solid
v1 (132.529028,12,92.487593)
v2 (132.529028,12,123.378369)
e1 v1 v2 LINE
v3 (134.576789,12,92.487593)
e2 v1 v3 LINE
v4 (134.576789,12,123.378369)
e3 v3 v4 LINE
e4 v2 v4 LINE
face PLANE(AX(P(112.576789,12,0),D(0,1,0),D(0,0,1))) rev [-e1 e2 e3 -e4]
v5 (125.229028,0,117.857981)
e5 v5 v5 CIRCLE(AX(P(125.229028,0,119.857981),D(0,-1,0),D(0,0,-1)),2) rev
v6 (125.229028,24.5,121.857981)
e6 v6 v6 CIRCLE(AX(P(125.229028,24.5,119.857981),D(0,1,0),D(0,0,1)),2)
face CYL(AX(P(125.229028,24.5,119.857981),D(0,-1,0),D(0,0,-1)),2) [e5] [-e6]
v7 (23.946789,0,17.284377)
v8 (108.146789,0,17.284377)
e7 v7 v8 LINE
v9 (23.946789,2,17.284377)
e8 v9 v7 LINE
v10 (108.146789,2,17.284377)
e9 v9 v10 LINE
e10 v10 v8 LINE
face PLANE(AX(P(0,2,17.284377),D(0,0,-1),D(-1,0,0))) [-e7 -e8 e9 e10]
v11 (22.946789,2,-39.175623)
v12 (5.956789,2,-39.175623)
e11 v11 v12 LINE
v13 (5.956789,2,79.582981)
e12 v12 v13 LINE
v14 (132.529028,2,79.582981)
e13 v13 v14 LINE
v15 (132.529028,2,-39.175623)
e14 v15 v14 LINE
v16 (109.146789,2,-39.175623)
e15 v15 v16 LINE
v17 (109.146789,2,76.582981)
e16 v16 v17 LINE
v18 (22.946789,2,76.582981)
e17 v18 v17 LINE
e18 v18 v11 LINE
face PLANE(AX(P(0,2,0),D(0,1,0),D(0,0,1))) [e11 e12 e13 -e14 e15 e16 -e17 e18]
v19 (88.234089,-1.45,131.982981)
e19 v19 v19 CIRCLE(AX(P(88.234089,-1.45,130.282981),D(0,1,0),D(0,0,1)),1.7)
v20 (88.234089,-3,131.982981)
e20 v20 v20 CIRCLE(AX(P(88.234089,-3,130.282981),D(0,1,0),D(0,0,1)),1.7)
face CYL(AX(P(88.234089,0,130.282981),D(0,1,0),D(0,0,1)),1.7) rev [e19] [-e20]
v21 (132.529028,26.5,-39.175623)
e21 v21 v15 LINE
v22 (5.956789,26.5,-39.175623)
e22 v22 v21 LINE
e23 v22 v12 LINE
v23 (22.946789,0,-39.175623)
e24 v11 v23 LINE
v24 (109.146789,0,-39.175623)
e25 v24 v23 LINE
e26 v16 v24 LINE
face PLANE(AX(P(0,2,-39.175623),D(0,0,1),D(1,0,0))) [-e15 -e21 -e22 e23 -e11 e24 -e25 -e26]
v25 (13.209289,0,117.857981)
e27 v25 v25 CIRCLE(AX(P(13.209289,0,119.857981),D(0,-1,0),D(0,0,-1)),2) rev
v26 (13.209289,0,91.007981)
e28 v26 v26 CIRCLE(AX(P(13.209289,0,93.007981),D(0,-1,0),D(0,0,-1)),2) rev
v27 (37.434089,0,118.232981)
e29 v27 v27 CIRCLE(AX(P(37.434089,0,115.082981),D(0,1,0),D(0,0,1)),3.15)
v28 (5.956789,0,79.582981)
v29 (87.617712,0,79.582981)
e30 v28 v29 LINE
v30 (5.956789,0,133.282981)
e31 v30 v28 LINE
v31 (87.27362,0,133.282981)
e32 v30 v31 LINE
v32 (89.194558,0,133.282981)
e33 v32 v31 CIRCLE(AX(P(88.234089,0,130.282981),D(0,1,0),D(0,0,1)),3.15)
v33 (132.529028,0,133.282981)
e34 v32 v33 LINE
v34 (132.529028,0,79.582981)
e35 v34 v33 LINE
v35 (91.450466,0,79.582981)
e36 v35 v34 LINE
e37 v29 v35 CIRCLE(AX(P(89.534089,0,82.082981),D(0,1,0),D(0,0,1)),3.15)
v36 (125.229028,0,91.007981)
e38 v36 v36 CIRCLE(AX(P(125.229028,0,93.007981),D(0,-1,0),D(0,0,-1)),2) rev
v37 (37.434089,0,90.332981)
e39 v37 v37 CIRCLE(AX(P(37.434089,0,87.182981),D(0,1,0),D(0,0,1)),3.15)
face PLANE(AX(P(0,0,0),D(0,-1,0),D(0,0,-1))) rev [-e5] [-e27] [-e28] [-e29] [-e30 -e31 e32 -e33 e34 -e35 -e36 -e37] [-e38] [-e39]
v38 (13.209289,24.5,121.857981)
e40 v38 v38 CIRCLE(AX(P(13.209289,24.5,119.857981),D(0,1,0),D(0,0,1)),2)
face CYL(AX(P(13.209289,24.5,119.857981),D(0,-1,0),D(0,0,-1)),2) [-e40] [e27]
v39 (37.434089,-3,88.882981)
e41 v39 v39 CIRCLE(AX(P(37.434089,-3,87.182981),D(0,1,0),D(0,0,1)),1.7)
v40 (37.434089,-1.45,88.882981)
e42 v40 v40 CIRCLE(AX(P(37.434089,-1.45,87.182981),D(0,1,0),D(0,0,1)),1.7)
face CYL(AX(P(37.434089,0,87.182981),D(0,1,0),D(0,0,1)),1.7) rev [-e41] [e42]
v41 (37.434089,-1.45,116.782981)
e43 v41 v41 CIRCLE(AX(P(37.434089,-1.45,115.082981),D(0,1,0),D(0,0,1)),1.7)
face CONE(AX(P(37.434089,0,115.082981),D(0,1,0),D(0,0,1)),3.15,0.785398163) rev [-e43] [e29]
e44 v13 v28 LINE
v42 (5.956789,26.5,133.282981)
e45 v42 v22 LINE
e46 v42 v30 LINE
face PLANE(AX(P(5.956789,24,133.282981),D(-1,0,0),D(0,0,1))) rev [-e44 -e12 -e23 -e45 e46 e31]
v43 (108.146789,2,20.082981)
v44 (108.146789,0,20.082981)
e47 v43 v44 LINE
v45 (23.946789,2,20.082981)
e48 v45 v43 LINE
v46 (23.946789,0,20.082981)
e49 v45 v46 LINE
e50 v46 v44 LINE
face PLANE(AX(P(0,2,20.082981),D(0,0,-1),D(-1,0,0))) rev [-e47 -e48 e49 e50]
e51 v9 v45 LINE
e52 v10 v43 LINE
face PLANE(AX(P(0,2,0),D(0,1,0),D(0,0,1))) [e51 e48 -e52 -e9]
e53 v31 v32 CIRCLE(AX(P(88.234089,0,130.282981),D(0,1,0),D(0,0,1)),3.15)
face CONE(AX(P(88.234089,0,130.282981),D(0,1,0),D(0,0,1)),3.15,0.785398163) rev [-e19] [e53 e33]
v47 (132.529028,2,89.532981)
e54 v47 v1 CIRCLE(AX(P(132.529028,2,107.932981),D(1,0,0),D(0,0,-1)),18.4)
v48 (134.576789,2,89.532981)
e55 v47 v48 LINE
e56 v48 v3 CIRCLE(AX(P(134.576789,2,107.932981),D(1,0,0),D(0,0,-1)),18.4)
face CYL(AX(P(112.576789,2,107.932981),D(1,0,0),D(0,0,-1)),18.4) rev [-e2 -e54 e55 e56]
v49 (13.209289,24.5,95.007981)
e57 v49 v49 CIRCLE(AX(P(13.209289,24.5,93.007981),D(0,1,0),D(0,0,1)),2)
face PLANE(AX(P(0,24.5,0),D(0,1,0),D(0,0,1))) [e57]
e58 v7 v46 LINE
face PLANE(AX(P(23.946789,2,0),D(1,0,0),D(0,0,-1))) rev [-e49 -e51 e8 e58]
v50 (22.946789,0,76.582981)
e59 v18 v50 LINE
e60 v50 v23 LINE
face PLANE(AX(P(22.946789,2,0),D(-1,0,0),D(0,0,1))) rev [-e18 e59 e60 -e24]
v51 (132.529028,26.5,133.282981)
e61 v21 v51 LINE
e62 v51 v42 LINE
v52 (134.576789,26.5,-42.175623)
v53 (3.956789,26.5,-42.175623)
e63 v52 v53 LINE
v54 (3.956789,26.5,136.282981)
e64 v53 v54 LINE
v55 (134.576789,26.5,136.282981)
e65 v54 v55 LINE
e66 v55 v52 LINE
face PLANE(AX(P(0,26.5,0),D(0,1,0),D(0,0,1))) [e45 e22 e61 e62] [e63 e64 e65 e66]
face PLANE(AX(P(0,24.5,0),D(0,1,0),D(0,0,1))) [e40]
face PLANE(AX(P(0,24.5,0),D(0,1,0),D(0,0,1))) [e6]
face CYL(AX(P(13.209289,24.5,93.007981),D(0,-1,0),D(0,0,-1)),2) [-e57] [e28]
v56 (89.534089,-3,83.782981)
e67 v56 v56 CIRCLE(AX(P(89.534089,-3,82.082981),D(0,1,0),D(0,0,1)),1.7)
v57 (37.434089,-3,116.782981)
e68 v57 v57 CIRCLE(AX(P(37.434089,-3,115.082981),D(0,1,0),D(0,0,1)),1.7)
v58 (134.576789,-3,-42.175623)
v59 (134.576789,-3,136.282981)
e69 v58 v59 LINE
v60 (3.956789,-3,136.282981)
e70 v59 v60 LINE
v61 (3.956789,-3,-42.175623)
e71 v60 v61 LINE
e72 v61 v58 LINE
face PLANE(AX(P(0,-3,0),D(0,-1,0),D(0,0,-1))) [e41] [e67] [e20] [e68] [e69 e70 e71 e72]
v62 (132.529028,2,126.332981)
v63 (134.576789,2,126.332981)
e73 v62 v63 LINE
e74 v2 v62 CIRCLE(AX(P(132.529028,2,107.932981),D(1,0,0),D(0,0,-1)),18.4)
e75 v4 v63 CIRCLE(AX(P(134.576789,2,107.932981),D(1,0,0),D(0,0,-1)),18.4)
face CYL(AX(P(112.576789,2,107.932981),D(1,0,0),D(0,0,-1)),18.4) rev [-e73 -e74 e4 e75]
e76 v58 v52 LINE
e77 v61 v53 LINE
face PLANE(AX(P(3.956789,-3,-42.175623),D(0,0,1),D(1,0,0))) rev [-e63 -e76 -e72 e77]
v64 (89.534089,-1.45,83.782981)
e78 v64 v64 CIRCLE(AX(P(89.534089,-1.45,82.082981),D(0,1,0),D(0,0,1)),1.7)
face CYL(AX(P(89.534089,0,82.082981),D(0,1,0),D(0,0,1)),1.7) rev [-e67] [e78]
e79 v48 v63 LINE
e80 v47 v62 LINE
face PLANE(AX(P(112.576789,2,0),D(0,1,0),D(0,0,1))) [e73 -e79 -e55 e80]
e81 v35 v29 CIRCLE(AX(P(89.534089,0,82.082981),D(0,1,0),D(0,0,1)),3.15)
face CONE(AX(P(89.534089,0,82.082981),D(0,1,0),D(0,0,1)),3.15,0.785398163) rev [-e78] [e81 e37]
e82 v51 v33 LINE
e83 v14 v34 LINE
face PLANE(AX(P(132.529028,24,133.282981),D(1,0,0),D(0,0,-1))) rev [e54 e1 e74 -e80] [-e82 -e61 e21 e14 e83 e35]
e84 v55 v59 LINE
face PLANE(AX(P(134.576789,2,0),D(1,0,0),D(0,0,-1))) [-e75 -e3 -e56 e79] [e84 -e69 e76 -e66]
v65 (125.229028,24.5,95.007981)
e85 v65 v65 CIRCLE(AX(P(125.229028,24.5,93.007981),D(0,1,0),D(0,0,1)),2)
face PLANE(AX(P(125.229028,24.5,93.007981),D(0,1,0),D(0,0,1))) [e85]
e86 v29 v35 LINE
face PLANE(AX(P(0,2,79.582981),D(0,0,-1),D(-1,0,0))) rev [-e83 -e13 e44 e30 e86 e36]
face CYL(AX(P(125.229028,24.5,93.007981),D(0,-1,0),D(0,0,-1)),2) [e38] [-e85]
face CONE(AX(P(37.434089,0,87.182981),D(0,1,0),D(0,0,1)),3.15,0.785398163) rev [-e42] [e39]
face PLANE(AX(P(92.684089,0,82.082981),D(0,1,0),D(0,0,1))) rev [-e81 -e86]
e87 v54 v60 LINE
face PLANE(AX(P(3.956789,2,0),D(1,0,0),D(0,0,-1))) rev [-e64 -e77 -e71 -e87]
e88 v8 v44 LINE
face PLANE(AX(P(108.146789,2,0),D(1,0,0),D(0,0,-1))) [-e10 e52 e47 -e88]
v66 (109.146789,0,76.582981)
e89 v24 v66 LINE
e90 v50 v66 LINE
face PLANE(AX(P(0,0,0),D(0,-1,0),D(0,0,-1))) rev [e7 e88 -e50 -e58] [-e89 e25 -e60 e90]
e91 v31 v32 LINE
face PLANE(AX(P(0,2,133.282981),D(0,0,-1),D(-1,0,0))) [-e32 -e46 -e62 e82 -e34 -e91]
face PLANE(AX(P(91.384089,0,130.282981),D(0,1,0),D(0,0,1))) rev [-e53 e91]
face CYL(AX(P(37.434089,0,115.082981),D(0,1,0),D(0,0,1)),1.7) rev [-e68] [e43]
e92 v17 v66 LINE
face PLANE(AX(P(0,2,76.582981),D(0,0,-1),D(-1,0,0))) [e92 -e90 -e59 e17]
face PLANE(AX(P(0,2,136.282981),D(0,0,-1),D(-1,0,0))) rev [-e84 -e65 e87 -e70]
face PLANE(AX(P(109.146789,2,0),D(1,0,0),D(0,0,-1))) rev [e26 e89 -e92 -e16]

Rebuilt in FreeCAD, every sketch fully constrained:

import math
import FreeCAD as App
import Part
import Sketcher
from FreeCAD import Vector
Q = App.Units.Quantity


def add_polygon(sketch, points):
    """Adds a closed chain of lines whose ends are joined by coincident constraints."""
    first, n = sketch.GeometryCount, len(points)
    for a, b in zip(points, points[1:] + points[:1]):
        sketch.addGeometry(Part.LineSegment(App.Vector(*a, 0), App.Vector(*b, 0)), False)
    for i in range(n):
        sketch.addConstraint(Sketcher.Constraint("Coincident", first + i, 2, first + (i + 1) % n, 1))

doc = App.newDocument("Part")
body = doc.addObject("PartDesign::Body", "Body")
body.AllowCompound = True

sketch1 = body.newObject("Sketcher::SketchObject", "Sketch")
sketch1.AttachmentSupport = (doc.getObject("XZ_Plane"), [""])
sketch1.MapMode = "FlatFace"
add_polygon(sketch1, [(4, 133.3), (4, 136.3), (134.6, 136.3), (134.6, 133.3)])
add_polygon(sketch1, [(4, 79.6), (134.6, 79.6), (134.6, -42.2), (4, -42.2)])
add_polygon(sketch1, [(109.1, -39.2), (109.1, 76.6), (22.9, 76.6), (22.9, -39.2)])
add_polygon(sketch1, [(23.9, 17.3), (23.9, 20.1), (108.1, 20.1), (108.1, 17.3)])
sketch1.addConstraint([
    Sketcher.Constraint("Vertical", 0),
    Sketcher.Constraint("Horizontal", 1),
    Sketcher.Constraint("Vertical", 2),
    Sketcher.Constraint("Horizontal", 3),
    Sketcher.Constraint("Horizontal", 4),
    Sketcher.Constraint("Vertical", 5),
    Sketcher.Constraint("Horizontal", 6),
    Sketcher.Constraint("Vertical", 7),
    Sketcher.Constraint("Vertical", 8),
    Sketcher.Constraint("Horizontal", 9),
    Sketcher.Constraint("Vertical", 10),
    Sketcher.Constraint("Horizontal", 11),
    Sketcher.Constraint("Vertical", 12),
    Sketcher.Constraint("Horizontal", 13),
    Sketcher.Constraint("Vertical", 14),
    Sketcher.Constraint("Horizontal", 15),
    Sketcher.Constraint("Vertical", 2, 2, 4, 2),
    Sketcher.Constraint("Vertical", 3, 2, 6, 2),
    Sketcher.Constraint("DistanceY", 0, 1, 0, 2, 3.0),
    Sketcher.Constraint("DistanceX", 9, 2, 9, 1, 86.2),
    Sketcher.Constraint("DistanceX", 13, 1, 13, 2, 84.2),
    Sketcher.Constraint("DistanceY", 8, 2, 4, 2, 3.0),
    Sketcher.Constraint("DistanceY", 6, 2, 10, 2, 3.0),
    Sketcher.Constraint("DistanceX", 9, 2, 12, 2, 1.0),
    Sketcher.Constraint("DistanceX", 1, 1, 1, 2, 130.62),
    Sketcher.Constraint("DistanceY", 4, 2, 2, 2, 53.7),
    Sketcher.Constraint("DistanceY", 12, 2, 9, 2, 56.5),
    Sketcher.Constraint("DistanceX", 8, 2, 4, 2, 25.43),
    Sketcher.Constraint("DistanceY", 11, 2, 14, 2, 56.46),
    Sketcher.Constraint("DistanceY", 5, 2, 5, 1, 121.758603),
    Sketcher.Constraint("DistanceX", -1, 1, 0, 2, 3.956789),
    Sketcher.Constraint("DistanceY", -1, 1, 0, 2, 136.282981),
])
pad1 = body.newObject("PartDesign::Pad", "Pad")
pad1.Profile = sketch1
pad1.Length = 2
pad1.Reversed = True

sketch2 = body.newObject("Sketcher::SketchObject", "Sketch001")
sketch2.AttachmentSupport = (doc.getObject("XZ_Plane"), [""])
sketch2.MapMode = "FlatFace"
add_polygon(sketch2, [(4, 136), (4, -42), (135, -42), (135, 136)])
sketch2.addConstraint([
    Sketcher.Constraint("Vertical", 0),
    Sketcher.Constraint("Horizontal", 1),
    Sketcher.Constraint("Vertical", 2),
    Sketcher.Constraint("Horizontal", 3),
    Sketcher.Constraint("DistanceX", 1, 1, 1, 2, 130.62),
    Sketcher.Constraint("DistanceY", 0, 2, 0, 1, 178.458603),
    Sketcher.Constraint("DistanceX", -1, 1, 0, 2, 3.956789),
    Sketcher.Constraint("DistanceY", -1, 1, 2, 2, 136.282981),
])
pad2 = body.newObject("PartDesign::Pad", "Pad001")
pad2.Profile = sketch2
pad2.Length = 3

sketch3 = body.newObject("Sketcher::SketchObject", "Sketch002")
sketch3.AttachmentSupport = (doc.getObject("YZ_Plane"), [""])
sketch3.MapMode = "FlatFace"
sketch3.AttachmentOffset = App.Placement(Vector(0, 0, 88.234089), App.Rotation())
add_polygon(sketch3, [(-3, 130.3), (0, 130.3), (0, 133.4), (-1.4, 132), (-3, 132)])
sketch3.addGeometry(Part.LineSegment(Vector(0, 130.3, 0), Vector(-3, 130.3, 0)), True)
sketch3.addConstraint([
    Sketcher.Constraint("Horizontal", 0),
    Sketcher.Constraint("Vertical", 1),
    Sketcher.Constraint("Horizontal", 3),
    Sketcher.Constraint("Vertical", 4),
    Sketcher.Constraint("Horizontal", 5),
    Sketcher.Constraint("Coincident", 5, 1, 0, 2),
    Sketcher.Constraint("PointOnObject", 0, 2, -2),
    Sketcher.Constraint("Vertical", 3, 2, 5, 2),
    Sketcher.Constraint("DistanceX", 0, 1, 0, 2, 3.0),
    Sketcher.Constraint("Angle", 2, Q("-135 deg")),
    Sketcher.Constraint("DistanceY", 4, 2, 4, 1, 1.7),
    Sketcher.Constraint("DistanceX", 3, 2, 3, 1, 1.55),
    Sketcher.Constraint("DistanceY", -1, 1, 0, 2, 130.282981),
])
groove = body.newObject("PartDesign::Groove", "Groove")
groove.Profile = sketch3
groove.ReferenceAxis = (sketch3, ["Axis0"])
groove.Angle = 360
doc.recompute()

datumline = body.newObject("PartDesign::Line", "DatumLine")
datumline.Placement = App.Placement(Vector(0, 0, 0), App.Rotation(Vector(0, 0, 1), Vector(-0.958033656, 0, -0.28665574)))
linearpattern = body.newObject("PartDesign::LinearPattern", "LinearPattern")
linearpattern.Originals = [groove]
linearpattern.Direction = (datumline, [""])
linearpattern.Mode = "offset"
linearpattern.Offset = 53.025277
linearpattern.Occurrences = 2
body.Tip = linearpattern
doc.recompute()

datumline2 = body.newObject("PartDesign::Line", "DatumLine001")
datumline2.Placement = App.Placement(Vector(0, 0, 0), App.Rotation(Vector(0, 0, 1), Vector(-0.762531574, 0, -0.646951001)))
linearpattern2 = body.newObject("PartDesign::LinearPattern", "LinearPattern001")
linearpattern2.Originals = [groove]
linearpattern2.Direction = (datumline2, [""])
linearpattern2.Mode = "offset"
linearpattern2.Offset = 66.620192
linearpattern2.Occurrences = 2
body.Tip = linearpattern2
doc.recompute()

datumline3 = body.newObject("PartDesign::Line", "DatumLine002")
datumline3.Placement = App.Placement(Vector(0, 0, 0), App.Rotation(Vector(0, 0, 1), Vector(0.02696115, 0, -0.999636482)))
linearpattern3 = body.newObject("PartDesign::LinearPattern", "LinearPattern002")
linearpattern3.Originals = [groove]
linearpattern3.Direction = (datumline3, [""])
linearpattern3.Mode = "offset"
linearpattern3.Offset = 48.217528
linearpattern3.Occurrences = 2
body.Tip = linearpattern3

sketch4 = body.newObject("Sketcher::SketchObject", "Sketch003")
sketch4.AttachmentSupport = (doc.getObject("XZ_Plane"), [""])
sketch4.MapMode = "FlatFace"
add_polygon(sketch4, [(132.5, 79.6), (132.5, 133.3), (134.6, 133.3), (134.6, 79.6)])
add_polygon(sketch4, [(4, 79.6), (4, 133.3), (6, 133.3), (6, 79.6)])
sketch4.addConstraint([
    Sketcher.Constraint("Vertical", 0),
    Sketcher.Constraint("Horizontal", 1),
    Sketcher.Constraint("Vertical", 2),
    Sketcher.Constraint("Horizontal", 3),
    Sketcher.Constraint("Vertical", 4),
    Sketcher.Constraint("Horizontal", 5),
    Sketcher.Constraint("Vertical", 6),
    Sketcher.Constraint("Horizontal", 7),
    Sketcher.Constraint("Horizontal", 1, 2, 4, 2),
    Sketcher.Constraint("Horizontal", 3, 2, 6, 2),
    Sketcher.Constraint("DistanceX", 5, 1, 5, 2, 2.0),
    Sketcher.Constraint("DistanceY", 0, 1, 0, 2, 53.7),
    Sketcher.Constraint("DistanceX", 4, 2, 1, 2, 130.62),
    Sketcher.Constraint("DistanceX", 1, 1, 1, 2, 2.047761),
    Sketcher.Constraint("DistanceX", -1, 1, 0, 2, 132.529028),
    Sketcher.Constraint("DistanceY", -1, 1, 0, 2, 133.282981),
])
pad3 = body.newObject("PartDesign::Pad", "Pad002")
pad3.Profile = sketch4
pad3.Length = 24
pad3.Reversed = True

sketch5 = body.newObject("Sketcher::SketchObject", "Sketch004")
sketch5.AttachmentSupport = (doc.getObject("XZ_Plane"), [""])
sketch5.MapMode = "FlatFace"
sketch5.AttachmentOffset = App.Placement(Vector(0, 0, -2), App.Rotation())
add_polygon(sketch5, [(4, 133.3), (4, 136.3), (134.6, 136.3), (134.6, 133.3)])
sketch5.addConstraint([
    Sketcher.Constraint("Vertical", 0),
    Sketcher.Constraint("Horizontal", 1),
    Sketcher.Constraint("Vertical", 2),
    Sketcher.Constraint("Horizontal", 3),
    Sketcher.Constraint("DistanceY", 0, 1, 0, 2, 3.0),
    Sketcher.Constraint("DistanceX", 1, 1, 1, 2, 130.62),
    Sketcher.Constraint("DistanceX", -1, 1, 0, 2, 3.956789),
    Sketcher.Constraint("DistanceY", -1, 1, 0, 2, 136.282981),
])
pad4 = body.newObject("PartDesign::Pad", "Pad003")
pad4.Profile = sketch5
pad4.Length = 22
pad4.Reversed = True

sketch6 = body.newObject("Sketcher::SketchObject", "Sketch005")
sketch6.AttachmentSupport = (doc.getObject("YZ_Plane"), [""])
sketch6.MapMode = "FlatFace"
sketch6.AttachmentOffset = App.Placement(Vector(0, 0, 134.576789), App.Rotation())
sketch6.addGeometry([
    Part.LineSegment(Vector(2, 126, 0), Vector(2, 90, 0)),
    Part.ArcOfCircle(Part.Circle(Vector(2, 108, 0), Vector(0, 0, 1), 18), math.radians(-90), math.radians(-57)),
    Part.LineSegment(Vector(12, 92, 0), Vector(12, 123, 0)),
    Part.ArcOfCircle(Part.Circle(Vector(2, 108, 0), Vector(0, 0, 1), 18), math.radians(57), math.radians(90)),
], False)
sketch6.addConstraint([
    Sketcher.Constraint("Coincident", 0, 2, 1, 1),
    Sketcher.Constraint("Coincident", 1, 2, 2, 1),
    Sketcher.Constraint("Coincident", 2, 2, 3, 1),
    Sketcher.Constraint("Coincident", 3, 2, 0, 1),
    Sketcher.Constraint("Vertical", 0),
    Sketcher.Constraint("Vertical", 2),
    Sketcher.Constraint("Coincident", 3, 3, 1, 3),
    Sketcher.Constraint("Equal", 1, 3),
    Sketcher.Constraint("Vertical", 3, 3, 0, 2),
    Sketcher.Constraint("Radius", 1, 18.4),
    Sketcher.Constraint("DistanceX", -1, 1, 1, 3, 2.0),
    Sketcher.Constraint("DistanceX", -1, 1, 1, 2, 12.0),
    Sketcher.Constraint("DistanceY", -1, 1, 1, 3, 107.932981),
])
pocket1 = body.newObject("PartDesign::Pocket", "Pocket")
pocket1.Profile = sketch6
pocket1.Length = 22

sketch7 = body.newObject("Sketcher::SketchObject", "Sketch006")
sketch7.AttachmentSupport = (doc.getObject("XZ_Plane"), [""])
sketch7.MapMode = "FlatFace"
sketch7.AttachmentOffset = App.Placement(Vector(0, 0, -2), App.Rotation())
add_polygon(sketch7, [(134.6, -42.2), (4, -42.2), (4, 79.6), (6, 79.6), (6, -39.2), (132.5, -39.2), (132.5, 79.6), (134.6, 79.6)])
sketch7.addConstraint([
    Sketcher.Constraint("Horizontal", 0),
    Sketcher.Constraint("Vertical", 1),
    Sketcher.Constraint("Horizontal", 2),
    Sketcher.Constraint("Vertical", 3),
    Sketcher.Constraint("Horizontal", 4),
    Sketcher.Constraint("Vertical", 5),
    Sketcher.Constraint("Horizontal", 6),
    Sketcher.Constraint("Vertical", 7),
    Sketcher.Constraint("Horizontal", 2, 2, 5, 2),
    Sketcher.Constraint("DistanceX", 2, 1, 2, 2, 2.0),
    Sketcher.Constraint("DistanceY", 0, 2, 3, 2, 3.0),
    Sketcher.Constraint("DistanceX", 0, 2, 0, 1, 130.62),
    Sketcher.Constraint("DistanceX", 4, 1, 4, 2, 126.572239),
    Sketcher.Constraint("DistanceY", 1, 1, 1, 2, 121.758603),
    Sketcher.Constraint("DistanceX", -1, 1, 0, 2, 3.956789),
    Sketcher.Constraint("DistanceY", -1, 1, 1, 2, 79.582981),
])
pad5 = body.newObject("PartDesign::Pad", "Pad004")
pad5.Profile = sketch7
pad5.Length = 22
pad5.Reversed = True

sketch8 = body.newObject("Sketcher::SketchObject", "Sketch007")
sketch8.AttachmentSupport = (doc.getObject("XZ_Plane"), [""])
sketch8.MapMode = "FlatFace"
sketch8.addGeometry([
    Part.ArcOfCircle(Part.Circle(Vector(125.2, 119.9, 0), Vector(0, 0, 1), 2), math.radians(90), math.radians(180)),
    Part.ArcOfCircle(Part.Circle(Vector(125.2, 119.9, 0), Vector(0, 0, 1), 2), math.radians(0), math.radians(90)),
    Part.ArcOfCircle(Part.Circle(Vector(125.2, 119.9, 0), Vector(0, 0, 1), 2), math.radians(-90), math.radians(0)),
    Part.ArcOfCircle(Part.Circle(Vector(125.2, 119.9, 0), Vector(0, 0, 1), 2), math.radians(-180), math.radians(-90)),
    Part.ArcOfCircle(Part.Circle(Vector(13.2, 119.9, 0), Vector(0, 0, 1), 2), math.radians(0), math.radians(90)),
    Part.ArcOfCircle(Part.Circle(Vector(13.2, 119.9, 0), Vector(0, 0, 1), 2), math.radians(-90), math.radians(0)),
    Part.ArcOfCircle(Part.Circle(Vector(13.2, 119.9, 0), Vector(0, 0, 1), 2), math.radians(90), math.radians(270)),
    Part.ArcOfCircle(Part.Circle(Vector(13.2, 93, 0), Vector(0, 0, 1), 2), math.radians(-90), math.radians(0)),
    Part.ArcOfCircle(Part.Circle(Vector(13.2, 93, 0), Vector(0, 0, 1), 2), math.radians(90), math.radians(270)),
    Part.ArcOfCircle(Part.Circle(Vector(13.2, 93, 0), Vector(0, 0, 1), 2), math.radians(0), math.radians(90)),
    Part.Circle(Vector(125.2, 93, 0), Vector(0, 0, 1), 2),
], False)
sketch8.addConstraint([
    Sketcher.Constraint("Tangent", 0, 1, 1, 2),
    Sketcher.Constraint("Tangent", 1, 1, 2, 2),
    Sketcher.Constraint("Tangent", 2, 1, 3, 2),
    Sketcher.Constraint("Tangent", 3, 1, 0, 2),
    Sketcher.Constraint("Tangent", 4, 1, 5, 2),
    Sketcher.Constraint("Tangent", 5, 1, 6, 2),
    Sketcher.Constraint("Tangent", 6, 1, 4, 2),
    Sketcher.Constraint("Tangent", 7, 1, 8, 2),
    Sketcher.Constraint("Tangent", 8, 1, 9, 2),
    Sketcher.Constraint("Tangent", 9, 1, 7, 2),
    Sketcher.Constraint("Equal", 0, 1),
    Sketcher.Constraint("Equal", 3, 4),
    Sketcher.Constraint("Equal", 6, 7),
    Sketcher.Constraint("Equal", 9, 10),
    Sketcher.Constraint("Horizontal", 3, 3, 4, 3),
    Sketcher.Constraint("Horizontal", 9, 3, 10, 3),
    Sketcher.Constraint("Horizontal", 6, 3, 1, 1),
    Sketcher.Constraint("Horizontal", 1, 1, 3, 1),
    Sketcher.Constraint("Horizontal", 3, 1, 4, 1),
    Sketcher.Constraint("Horizontal", 10, 3, 9, 1),
    Sketcher.Constraint("Vertical", 6, 3, 7, 3),
    Sketcher.Constraint("Vertical", 3, 3, 10, 3),
    Sketcher.Constraint("Vertical", 10, 3, 0, 1),
    Sketcher.Constraint("Vertical", 0, 1, 2, 1),
    Sketcher.Constraint("Vertical", 9, 3, 5, 1),
    Sketcher.Constraint("Vertical", 5, 1, 6, 1),
    Sketcher.Constraint("Vertical", 6, 1, 7, 1),
    Sketcher.Constraint("Vertical", 7, 1, 8, 1),
    Sketcher.Constraint("Diameter", 10, 4.0),
    Sketcher.Constraint("DistanceY", 7, 3, 4, 3, 26.85),
    Sketcher.Constraint("DistanceX", -1, 1, 0, 3, 125.229028),
    Sketcher.Constraint("DistanceY", -1, 1, 0, 3, 119.857981),
    Sketcher.Constraint("DistanceX", -1, 1, 4, 3, 13.209289),
])
pad6 = body.newObject("PartDesign::Pad", "Pad005")
pad6.Profile = sketch8
pad6.Length = 24.5
pad6.Reversed = True

sketch9 = body.newObject("Sketcher::SketchObject", "Sketch008")
sketch9.AttachmentSupport = (doc.getObject("XZ_Plane"), [""])
sketch9.MapMode = "FlatFace"
sketch9.AttachmentOffset = App.Placement(Vector(0, 0, -24), App.Rotation())
add_polygon(sketch9, [(134.6, 136.3), (134.6, -39.2), (134.6, -42.2), (4, -42.2), (4, 136.3)])
add_polygon(sketch9, [(6, -39.2), (132.5, -39.2), (132.5, 133.3), (6, 133.3)])
sketch9.addConstraint([
    Sketcher.Constraint("Vertical", 0),
    Sketcher.Constraint("Vertical", 1),
    Sketcher.Constraint("Horizontal", 2),
    Sketcher.Constraint("Vertical", 3),
    Sketcher.Constraint("Horizontal", 4),
    Sketcher.Constraint("Horizontal", 5),
    Sketcher.Constraint("Vertical", 6),
    Sketcher.Constraint("Horizontal", 7),
    Sketcher.Constraint("Vertical", 8),
    Sketcher.Constraint("Horizontal", 0, 2, 5, 2),
    Sketcher.Constraint("DistanceY", 1, 2, 1, 1, 3.0),
    Sketcher.Constraint("DistanceY", 6, 2, 4, 2, 3.0),
    Sketcher.Constraint("DistanceX", 3, 2, 7, 2, 2.0),
    Sketcher.Constraint("DistanceX", 2, 2, 2, 1, 130.62),
    Sketcher.Constraint("DistanceX", 5, 1, 5, 2, 126.572239),
    Sketcher.Constraint("DistanceY", 0, 2, 0, 1, 175.458603),
    Sketcher.Constraint("DistanceX", -1, 1, 0, 2, 134.576789),
    Sketcher.Constraint("DistanceY", -1, 1, 3, 2, 136.282981),
])
pad7 = body.newObject("PartDesign::Pad", "Pad006")
pad7.Profile = sketch9
pad7.Length = 2.5
pad7.Reversed = True

doc.recompute()
